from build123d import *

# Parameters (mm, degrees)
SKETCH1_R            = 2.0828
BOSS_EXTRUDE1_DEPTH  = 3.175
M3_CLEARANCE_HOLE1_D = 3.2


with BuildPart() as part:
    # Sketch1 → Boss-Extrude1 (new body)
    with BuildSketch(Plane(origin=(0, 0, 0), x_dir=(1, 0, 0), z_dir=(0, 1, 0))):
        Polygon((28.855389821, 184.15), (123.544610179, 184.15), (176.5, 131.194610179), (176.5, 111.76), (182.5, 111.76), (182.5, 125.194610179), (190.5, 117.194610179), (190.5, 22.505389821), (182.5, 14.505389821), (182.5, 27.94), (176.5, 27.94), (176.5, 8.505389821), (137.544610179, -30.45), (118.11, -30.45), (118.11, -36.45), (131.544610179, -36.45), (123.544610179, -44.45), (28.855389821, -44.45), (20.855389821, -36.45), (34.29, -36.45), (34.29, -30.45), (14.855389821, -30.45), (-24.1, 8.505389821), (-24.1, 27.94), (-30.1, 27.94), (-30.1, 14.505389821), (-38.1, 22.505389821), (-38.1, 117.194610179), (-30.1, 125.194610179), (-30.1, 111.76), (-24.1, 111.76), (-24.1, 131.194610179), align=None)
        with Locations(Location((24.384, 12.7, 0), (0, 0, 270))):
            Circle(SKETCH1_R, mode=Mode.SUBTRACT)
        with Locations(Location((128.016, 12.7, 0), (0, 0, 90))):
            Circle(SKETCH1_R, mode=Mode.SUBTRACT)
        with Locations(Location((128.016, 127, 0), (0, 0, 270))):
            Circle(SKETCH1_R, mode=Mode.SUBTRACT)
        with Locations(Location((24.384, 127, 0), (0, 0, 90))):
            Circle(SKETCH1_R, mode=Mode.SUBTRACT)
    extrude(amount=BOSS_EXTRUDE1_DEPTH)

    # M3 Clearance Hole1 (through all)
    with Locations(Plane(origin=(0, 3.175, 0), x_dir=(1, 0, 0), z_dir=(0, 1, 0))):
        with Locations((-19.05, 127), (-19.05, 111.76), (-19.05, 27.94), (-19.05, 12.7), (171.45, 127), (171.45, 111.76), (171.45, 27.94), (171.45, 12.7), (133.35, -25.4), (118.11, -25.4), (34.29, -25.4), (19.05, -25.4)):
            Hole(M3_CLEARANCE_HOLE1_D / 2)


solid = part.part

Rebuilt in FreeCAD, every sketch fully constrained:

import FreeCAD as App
import Part
import Sketcher
from FreeCAD import Vector

doc = App.newDocument("Part")
body = doc.addObject("PartDesign::Body", "Body")

# Sketch on XZ plane
sketch1 = doc.addObject("Sketcher::SketchObject", "Sketch")
body.addObject(sketch1)
sketch1.AttachmentSupport = (doc.XZ_Plane, [""])
sketch1.MapMode = "FlatFace"
sketch1.addGeometry(Part.LineSegment(Vector(123.5, -184.2, 0), Vector(28.9, -184.2, 0)), False)
sketch1.addGeometry(Part.LineSegment(Vector(28.9, -184.2, 0), Vector(-24.1, -131.2, 0)), False)
sketch1.addGeometry(Part.LineSegment(Vector(-24.1, -131.2, 0), Vector(-24.1, -111.8, 0)), False)
sketch1.addGeometry(Part.LineSegment(Vector(-24.1, -111.8, 0), Vector(-30.1, -111.8, 0)), False)
sketch1.addGeometry(Part.LineSegment(Vector(-30.1, -111.8, 0), Vector(-30.1, -125.2, 0)), False)
sketch1.addGeometry(Part.LineSegment(Vector(-30.1, -125.2, 0), Vector(-38.1, -117.2, 0)), False)
sketch1.addGeometry(Part.LineSegment(Vector(-38.1, -117.2, 0), Vector(-38.1, -22.5, 0)), False)
sketch1.addGeometry(Part.LineSegment(Vector(-38.1, -22.5, 0), Vector(-30.1, -14.5, 0)), False)
sketch1.addGeometry(Part.LineSegment(Vector(-30.1, -14.5, 0), Vector(-30.1, -27.9, 0)), False)
sketch1.addGeometry(Part.LineSegment(Vector(-30.1, -27.9, 0), Vector(-24.1, -27.9, 0)), False)
sketch1.addGeometry(Part.LineSegment(Vector(-24.1, -27.9, 0), Vector(-24.1, -8.5, 0)), False)
sketch1.addGeometry(Part.LineSegment(Vector(-24.1, -8.5, 0), Vector(14.9, 30.4, 0)), False)
sketch1.addGeometry(Part.LineSegment(Vector(14.9, 30.4, 0), Vector(34.3, 30.4, 0)), False)
sketch1.addGeometry(Part.LineSegment(Vector(34.3, 30.4, 0), Vector(34.3, 36.5, 0)), False)
sketch1.addGeometry(Part.LineSegment(Vector(34.3, 36.5, 0), Vector(20.9, 36.5, 0)), False)
sketch1.addGeometry(Part.LineSegment(Vector(20.9, 36.5, 0), Vector(28.9, 44.5, 0)), False)
sketch1.addGeometry(Part.LineSegment(Vector(28.9, 44.5, 0), Vector(123.5, 44.5, 0)), False)
sketch1.addGeometry(Part.LineSegment(Vector(123.5, 44.5, 0), Vector(131.5, 36.5, 0)), False)
sketch1.addGeometry(Part.LineSegment(Vector(131.5, 36.5, 0), Vector(118.1, 36.5, 0)), False)
sketch1.addGeometry(Part.LineSegment(Vector(118.1, 36.5, 0), Vector(118.1, 30.4, 0)), False)
sketch1.addGeometry(Part.LineSegment(Vector(118.1, 30.4, 0), Vector(137.5, 30.4, 0)), False)
sketch1.addGeometry(Part.LineSegment(Vector(137.5, 30.4, 0), Vector(176.5, -8.5, 0)), False)
sketch1.addGeometry(Part.LineSegment(Vector(176.5, -8.5, 0), Vector(176.5, -27.9, 0)), False)
sketch1.addGeometry(Part.LineSegment(Vector(176.5, -27.9, 0), Vector(182.5, -27.9, 0)), False)
sketch1.addGeometry(Part.LineSegment(Vector(182.5, -27.9, 0), Vector(182.5, -14.5, 0)), False)
sketch1.addGeometry(Part.LineSegment(Vector(182.5, -14.5, 0), Vector(190.5, -22.5, 0)), False)
sketch1.addGeometry(Part.LineSegment(Vector(190.5, -22.5, 0), Vector(190.5, -117.2, 0)), False)
sketch1.addGeometry(Part.LineSegment(Vector(190.5, -117.2, 0), Vector(182.5, -125.2, 0)), False)
sketch1.addGeometry(Part.LineSegment(Vector(182.5, -125.2, 0), Vector(182.5, -111.8, 0)), False)
sketch1.addGeometry(Part.LineSegment(Vector(182.5, -111.8, 0), Vector(176.5, -111.8, 0)), False)
sketch1.addGeometry(Part.LineSegment(Vector(176.5, -111.8, 0), Vector(176.5, -131.2, 0)), False)
sketch1.addGeometry(Part.LineSegment(Vector(176.5, -131.2, 0), Vector(123.5, -184.2, 0)), False)
sketch1.addGeometry(Part.Circle(Vector(128, -12.7, 0), Vector(0, 0, 1), 2.1), False)
sketch1.addGeometry(Part.Circle(Vector(24.4, -12.7, 0), Vector(0, 0, 1), 2.1), False)
sketch1.addGeometry(Part.Circle(Vector(128, -127, 0), Vector(0, 0, 1), 2.1), False)
sketch1.addGeometry(Part.Circle(Vector(24.4, -127, 0), Vector(0, 0, 1), 2.1), False)
sketch1.addConstraint(Sketcher.Constraint("Coincident", 0, 2, 1, 1))
sketch1.addConstraint(Sketcher.Constraint("Coincident", 1, 2, 2, 1))
sketch1.addConstraint(Sketcher.Constraint("Coincident", 2, 2, 3, 1))
sketch1.addConstraint(Sketcher.Constraint("Coincident", 3, 2, 4, 1))
sketch1.addConstraint(Sketcher.Constraint("Coincident", 4, 2, 5, 1))
sketch1.addConstraint(Sketcher.Constraint("Coincident", 5, 2, 6, 1))
sketch1.addConstraint(Sketcher.Constraint("Coincident", 6, 2, 7, 1))
sketch1.addConstraint(Sketcher.Constraint("Coincident", 7, 2, 8, 1))
sketch1.addConstraint(Sketcher.Constraint("Coincident", 8, 2, 9, 1))
sketch1.addConstraint(Sketcher.Constraint("Coincident", 9, 2, 10, 1))
sketch1.addConstraint(Sketcher.Constraint("Coincident", 10, 2, 11, 1))
sketch1.addConstraint(Sketcher.Constraint("Coincident", 11, 2, 12, 1))
sketch1.addConstraint(Sketcher.Constraint("Coincident", 12, 2, 13, 1))
sketch1.addConstraint(Sketcher.Constraint("Coincident", 13, 2, 14, 1))
sketch1.addConstraint(Sketcher.Constraint("Coincident", 14, 2, 15, 1))
sketch1.addConstraint(Sketcher.Constraint("Coincident", 15, 2, 16, 1))
sketch1.addConstraint(Sketcher.Constraint("Coincident", 16, 2, 17, 1))
sketch1.addConstraint(Sketcher.Constraint("Coincident", 17, 2, 18, 1))
sketch1.addConstraint(Sketcher.Constraint("Coincident", 18, 2, 19, 1))
sketch1.addConstraint(Sketcher.Constraint("Coincident", 19, 2, 20, 1))
sketch1.addConstraint(Sketcher.Constraint("Coincident", 20, 2, 21, 1))
sketch1.addConstraint(Sketcher.Constraint("Coincident", 21, 2, 22, 1))
sketch1.addConstraint(Sketcher.Constraint("Coincident", 22, 2, 23, 1))
sketch1.addConstraint(Sketcher.Constraint("Coincident", 23, 2, 24, 1))
sketch1.addConstraint(Sketcher.Constraint("Coincident", 24, 2, 25, 1))
sketch1.addConstraint(Sketcher.Constraint("Coincident", 25, 2, 26, 1))
sketch1.addConstraint(Sketcher.Constraint("Coincident", 26, 2, 27, 1))
sketch1.addConstraint(Sketcher.Constraint("Coincident", 27, 2, 28, 1))
sketch1.addConstraint(Sketcher.Constraint("Coincident", 28, 2, 29, 1))
sketch1.addConstraint(Sketcher.Constraint("Coincident", 29, 2, 30, 1))
sketch1.addConstraint(Sketcher.Constraint("Coincident", 30, 2, 31, 1))
sketch1.addConstraint(Sketcher.Constraint("Coincident", 31, 2, 0, 1))
sketch1.addConstraint(Sketcher.Constraint("Horizontal", 0))
sketch1.addConstraint(Sketcher.Constraint("Vertical", 2))
sketch1.addConstraint(Sketcher.Constraint("Horizontal", 3))
sketch1.addConstraint(Sketcher.Constraint("Vertical", 4))
sketch1.addConstraint(Sketcher.Constraint("Vertical", 6))
sketch1.addConstraint(Sketcher.Constraint("Vertical", 8))
sketch1.addConstraint(Sketcher.Constraint("Horizontal", 9))
sketch1.addConstraint(Sketcher.Constraint("Vertical", 10))
sketch1.addConstraint(Sketcher.Constraint("Horizontal", 12))
sketch1.addConstraint(Sketcher.Constraint("Vertical", 13))
sketch1.addConstraint(Sketcher.Constraint("Horizontal", 14))
sketch1.addConstraint(Sketcher.Constraint("Horizontal", 16))
sketch1.addConstraint(Sketcher.Constraint("Horizontal", 18))
sketch1.addConstraint(Sketcher.Constraint("Vertical", 19))
sketch1.addConstraint(Sketcher.Constraint("Horizontal", 20))
sketch1.addConstraint(Sketcher.Constraint("Vertical", 22))
sketch1.addConstraint(Sketcher.Constraint("Horizontal", 23))
sketch1.addConstraint(Sketcher.Constraint("Vertical", 24))
sketch1.addConstraint(Sketcher.Constraint("Vertical", 26))
sketch1.addConstraint(Sketcher.Constraint("Vertical", 28))
sketch1.addConstraint(Sketcher.Constraint("Horizontal", 29))
sketch1.addConstraint(Sketcher.Constraint("Vertical", 30))
sketch1.addConstraint(Sketcher.Constraint("Equal", 32, 33))
sketch1.addConstraint(Sketcher.Constraint("Equal", 33, 34))
sketch1.addConstraint(Sketcher.Constraint("Equal", 34, 35))
sketch1.addConstraint(Sketcher.Constraint("Parallel", 1, 5))
sketch1.addConstraint(Sketcher.Constraint("Perpendicular", 5, 7))
sketch1.addConstraint(Sketcher.Constraint("Parallel", 7, 11))
sketch1.addConstraint(Sketcher.Constraint("Parallel", 11, 15))
sketch1.addConstraint(Sketcher.Constraint("Perpendicular", 15, 17))
sketch1.addConstraint(Sketcher.Constraint("Parallel", 17, 21))
sketch1.addConstraint(Sketcher.Constraint("Parallel", 21, 25))
sketch1.addConstraint(Sketcher.Constraint("Perpendicular", 25, 27))
sketch1.addConstraint(Sketcher.Constraint("Parallel", 27, 31))
sketch1.addConstraint(Sketcher.Constraint("Horizontal", 32, 3, 33, 3))
sketch1.addConstraint(Sketcher.Constraint("Horizontal", 34, 3, 35, 3))
sketch1.addConstraint(Sketcher.Constraint("Horizontal", 14, 2, 17, 2))
sketch1.addConstraint(Sketcher.Constraint("Horizontal", 12, 2, 19, 2))
sketch1.addConstraint(Sketcher.Constraint("Horizontal", 10, 2, 21, 2))
sketch1.addConstraint(Sketcher.Constraint("Horizontal", 9, 2, 22, 2))
sketch1.addConstraint(Sketcher.Constraint("Horizontal", 7, 2, 24, 2))
sketch1.addConstraint(Sketcher.Constraint("Horizontal", 6, 2, 25, 2))
sketch1.addConstraint(Sketcher.Constraint("Horizontal", 5, 2, 26, 2))
sketch1.addConstraint(Sketcher.Constraint("Horizontal", 4, 2, 27, 2))
sketch1.addConstraint(Sketcher.Constraint("Horizontal", 3, 2, 28, 2))
sketch1.addConstraint(Sketcher.Constraint("Horizontal", 1, 2, 30, 2))
sketch1.addConstraint(Sketcher.Constraint("Vertical", 32, 3, 34, 3))
sketch1.addConstraint(Sketcher.Constraint("Vertical", 33, 3, 35, 3))
sketch1.addConstraint(Sketcher.Constraint("Vertical", 4, 2, 7, 2))
sketch1.addConstraint(Sketcher.Constraint("Vertical", 2, 2, 9, 2))
sketch1.addConstraint(Sketcher.Constraint("Vertical", 0, 2, 15, 2))
sketch1.addConstraint(Sketcher.Constraint("Vertical", 24, 2, 27, 2))
sketch1.addConstraint(Sketcher.Constraint("Vertical", 22, 2, 29, 2))
sketch1.addConstraint(Sketcher.Constraint("Vertical", 16, 2, 31, 2))
sketch1.addConstraint(Sketcher.Constraint("Equal", 14, 18))
sketch1.addConstraint(Sketcher.Constraint("Equal", 9, 23))
sketch1.addConstraint(Sketcher.Constraint("Equal", 20, 2))
sketch1.addConstraint(Sketcher.Constraint("Equal", 18, 4))
sketch1.addConstraint(Sketcher.Constraint("Equal", 16, 6))
sketch1.addConstraint(Sketcher.Constraint("Equal", 4, 8))
sketch1.addConstraint(Sketcher.Constraint("Equal", 2, 10))
sketch1.addConstraint(Sketcher.Constraint("Equal", 29, 13))
sketch1.addConstraint(Sketcher.Constraint("Equal", 7, 15))
sketch1.addConstraint(Sketcher.Constraint("DistanceX", 3, 2, 3, 1, 6.0))
sketch1.addConstraint(Sketcher.Constraint("DistanceY", 34, 3, -1, 1, 127.0))
sketch1.addConstraint(Sketcher.Constraint("DistanceY", 1, 2, 4, 2, 6.0))
sketch1.addConstraint(Sketcher.Constraint("DistanceX", 5, 2, 3, 2, 8.0))
sketch1.addConstraint(Sketcher.Constraint("Diameter", 32, 4.1656))
sketch1.addConstraint(Sketcher.Constraint("DistanceY", 32, 3, -1, 1, 12.7))
sketch1.addConstraint(Sketcher.Constraint("DistanceX", 1, 2, -1, 1, 24.1))
sketch1.addConstraint(Sketcher.Constraint("DistanceX", -1, 1, 21, 2, 176.5))
sketch1.addConstraint(Sketcher.Constraint("DistanceY", 0, 2, -1, 1, 184.15))
sketch1.addConstraint(Sketcher.Constraint("DistanceY", 2, 2, -1, 1, 111.76))
sketch1.addConstraint(Sketcher.Constraint("DistanceX", -1, 1, 32, 3, 128.016))
sketch1.addConstraint(Sketcher.Constraint("DistanceX", -1, 1, 33, 3, 24.384))
sketch1.addConstraint(Sketcher.Constraint("DistanceX", 0, 2, 0, 1, 94.68922))
pad1 = doc.addObject("PartDesign::Pad", "Pad")
body.addObject(pad1)
pad1.Profile = sketch1
pad1.Length = 3.175
pad1.Reversed = True

# Sketch on XZ plane
sketch2 = doc.addObject("Sketcher::SketchObject", "Sketch001")
body.addObject(sketch2)
sketch2.AttachmentSupport = (doc.XZ_Plane, [""])
sketch2.MapMode = "FlatFace"
sketch2.AttachmentOffset = App.Placement(Vector(0, 0, -3.175), App.Rotation())
sketch2.addGeometry(Part.Circle(Vector(-19.1, -127, 0), Vector(0, 0, 1), 1.6), False)
sketch2.addGeometry(Part.Circle(Vector(-19.1, -111.8, 0), Vector(0, 0, 1), 1.6), False)
sketch2.addGeometry(Part.Circle(Vector(-19.1, -27.9, 0), Vector(0, 0, 1), 1.6), False)
sketch2.addGeometry(Part.Circle(Vector(-19.1, -12.7, 0), Vector(0, 0, 1), 1.6), False)
sketch2.addGeometry(Part.Circle(Vector(171.4, -127, 0), Vector(0, 0, 1), 1.6), False)
sketch2.addGeometry(Part.Circle(Vector(171.4, -111.8, 0), Vector(0, 0, 1), 1.6), False)
sketch2.addGeometry(Part.Circle(Vector(171.4, -27.9, 0), Vector(0, 0, 1), 1.6), False)
sketch2.addGeometry(Part.Circle(Vector(171.4, -12.7, 0), Vector(0, 0, 1), 1.6), False)
sketch2.addGeometry(Part.Circle(Vector(133.3, 25.4, 0), Vector(0, 0, 1), 1.6), False)
sketch2.addGeometry(Part.Circle(Vector(118.1, 25.4, 0), Vector(0, 0, 1), 1.6), False)
sketch2.addGeometry(Part.Circle(Vector(34.3, 25.4, 0), Vector(0, 0, 1), 1.6), False)
sketch2.addGeometry(Part.Circle(Vector(19.1, 25.4, 0), Vector(0, 0, 1), 1.6), False)
sketch2.addConstraint(Sketcher.Constraint("Equal", 0, 1))
sketch2.addConstraint(Sketcher.Constraint("Equal", 1, 2))
sketch2.addConstraint(Sketcher.Constraint("Equal", 2, 3))
sketch2.addConstraint(Sketcher.Constraint("Equal", 3, 4))
sketch2.addConstraint(Sketcher.Constraint("Equal", 4, 5))
sketch2.addConstraint(Sketcher.Constraint("Equal", 5, 6))
sketch2.addConstraint(Sketcher.Constraint("Equal", 6, 7))
sketch2.addConstraint(Sketcher.Constraint("Equal", 7, 8))
sketch2.addConstraint(Sketcher.Constraint("Equal", 8, 9))
sketch2.addConstraint(Sketcher.Constraint("Equal", 9, 10))
sketch2.addConstraint(Sketcher.Constraint("Equal", 10, 11))
sketch2.addConstraint(Sketcher.Constraint("Horizontal", 0, 3, 4, 3))
sketch2.addConstraint(Sketcher.Constraint("Horizontal", 1, 3, 5, 3))
sketch2.addConstraint(Sketcher.Constraint("Horizontal", 2, 3, 6, 3))
sketch2.addConstraint(Sketcher.Constraint("Horizontal", 3, 3, 7, 3))
sketch2.addConstraint(Sketcher.Constraint("Horizontal", 8, 3, 9, 3))
sketch2.addConstraint(Sketcher.Constraint("Horizontal", 9, 3, 10, 3))
sketch2.addConstraint(Sketcher.Constraint("Horizontal", 10, 3, 11, 3))
sketch2.addConstraint(Sketcher.Constraint("Vertical", 0, 3, 1, 3))
sketch2.addConstraint(Sketcher.Constraint("Vertical", 1, 3, 2, 3))
sketch2.addConstraint(Sketcher.Constraint("Vertical", 2, 3, 3, 3))
sketch2.addConstraint(Sketcher.Constraint("Vertical", 4, 3, 5, 3))
sketch2.addConstraint(Sketcher.Constraint("Vertical", 5, 3, 6, 3))
sketch2.addConstraint(Sketcher.Constraint("Vertical", 6, 3, 7, 3))
sketch2.addConstraint(Sketcher.Constraint("Diameter", 0, 3.2))
sketch2.addConstraint(Sketcher.Constraint("DistanceY", 0, 3, -1, 1, 127.0))
sketch2.addConstraint(Sketcher.Constraint("DistanceY", 3, 3, -1, 1, 12.7))
sketch2.addConstraint(Sketcher.Constraint("DistanceY", -1, 1, 8, 3, 25.4))
sketch2.addConstraint(Sketcher.Constraint("DistanceX", 0, 3, 4, 3, 190.5))
sketch2.addConstraint(Sketcher.Constraint("DistanceX", 8, 3, 7, 3, 38.1))
sketch2.addConstraint(Sketcher.Constraint("DistanceX", 3, 3, 11, 3, 38.1))
sketch2.addConstraint(Sketcher.Constraint("DistanceX", 0, 3, -1, 1, 19.05))
sketch2.addConstraint(Sketcher.Constraint("DistanceY", 1, 3, -1, 1, 111.76))
sketch2.addConstraint(Sketcher.Constraint("DistanceY", 2, 3, -1, 1, 27.94))
sketch2.addConstraint(Sketcher.Constraint("DistanceX", -1, 1, 9, 3, 118.11))
sketch2.addConstraint(Sketcher.Constraint("DistanceX", -1, 1, 10, 3, 34.29))
doc.recompute()
hole = doc.addObject("PartDesign::Hole", "Hole")
body.addObject(hole)
hole.Profile = sketch2
hole.ThreadType = "None"
hole.Diameter = 3.2
hole.DepthType = "ThroughAll"
hole.Reversed = True

doc.recompute()
